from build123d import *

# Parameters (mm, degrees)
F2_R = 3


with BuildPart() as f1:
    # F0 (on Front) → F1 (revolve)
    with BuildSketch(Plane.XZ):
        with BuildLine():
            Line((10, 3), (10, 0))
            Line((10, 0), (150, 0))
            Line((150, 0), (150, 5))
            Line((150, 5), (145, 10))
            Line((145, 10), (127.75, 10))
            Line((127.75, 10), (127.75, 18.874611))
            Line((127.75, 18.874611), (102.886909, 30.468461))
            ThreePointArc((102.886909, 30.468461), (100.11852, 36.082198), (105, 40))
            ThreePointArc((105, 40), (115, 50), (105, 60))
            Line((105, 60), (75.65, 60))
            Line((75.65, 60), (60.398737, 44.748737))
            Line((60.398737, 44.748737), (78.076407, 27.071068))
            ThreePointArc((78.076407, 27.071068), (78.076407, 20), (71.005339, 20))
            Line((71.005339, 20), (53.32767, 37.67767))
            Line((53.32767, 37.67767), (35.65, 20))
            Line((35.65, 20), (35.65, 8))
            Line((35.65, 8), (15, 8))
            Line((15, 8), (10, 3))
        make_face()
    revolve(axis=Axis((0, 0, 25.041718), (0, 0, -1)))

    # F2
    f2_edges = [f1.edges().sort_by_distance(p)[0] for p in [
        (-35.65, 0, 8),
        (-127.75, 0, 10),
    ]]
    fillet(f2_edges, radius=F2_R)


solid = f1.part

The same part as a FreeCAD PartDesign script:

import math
import FreeCAD as App
import Part
import Sketcher
from FreeCAD import Vector
Q = App.Units.Quantity


def edges_at(feature, points):
    """Names of the edges that pass closest to the given points."""
    edges = feature.Shape.Edges
    near = lambda p: min(range(len(edges)), key=lambda i: edges[i].distToShape(Part.Vertex(*p))[0])
    return sorted({f"Edge{near(p) + 1}" for p in points})

doc = App.newDocument("Part")
params = doc.addObject("Spreadsheet::Sheet", "Params")
for row, (alias, value) in enumerate([
    ("sketch1_radius", "5 mm"),
    ("sketch1_radius2", "10 mm"),
    ("sketch1_width", "140 mm"),
    ("sketch1_height", "3 mm"),
    ("sketch1_height2", "5 mm"),
    ("revolution_angle", "360 deg"),
    ("fillet_radius", "3 mm"),
], start=1):
    params.set(f"A{row}", alias)
    params.set(f"B{row}", "=" + value)
    params.setAlias(f"B{row}", alias)

body = doc.addObject("PartDesign::Body", "Body")

sketch1 = doc.addObject("Sketcher::SketchObject", "Sketch")
body.addObject(sketch1)
sketch1.AttachmentSupport = (doc.XZ_Plane, [""])
sketch1.MapMode = "FlatFace"
sketch1.addGeometry([
    Part.LineSegment(Vector(10, 3, 0), Vector(10, 0, 0)),
    Part.LineSegment(Vector(10, 0, 0), Vector(150, 0, 0)),
    Part.LineSegment(Vector(150, 0, 0), Vector(150, 5, 0)),
    Part.LineSegment(Vector(150, 5, 0), Vector(145, 10, 0)),
    Part.LineSegment(Vector(145, 10, 0), Vector(127.8, 10, 0)),
    Part.LineSegment(Vector(127.8, 10, 0), Vector(127.8, 18.9, 0)),
    Part.LineSegment(Vector(127.8, 18.9, 0), Vector(102.9, 30.5, 0)),
    Part.ArcOfCircle(Part.Circle(Vector(105, 35, 0), Vector(0, 0, 1), 5), math.radians(90), math.radians(245)),
    Part.ArcOfCircle(Part.Circle(Vector(105, 50, 0), Vector(0, 0, 1), 10), math.radians(-90), math.radians(90)),
    Part.LineSegment(Vector(105, 60, 0), Vector(75.7, 60, 0)),
    Part.LineSegment(Vector(75.7, 60, 0), Vector(60.4, 44.7, 0)),
    Part.LineSegment(Vector(60.4, 44.7, 0), Vector(78.1, 27.1, 0)),
    Part.ArcOfCircle(Part.Circle(Vector(74.5, 23.5, 0), Vector(0, 0, 1), 5), math.radians(-135), math.radians(45)),
    Part.LineSegment(Vector(71, 20, 0), Vector(53.3, 37.7, 0)),
    Part.LineSegment(Vector(53.3, 37.7, 0), Vector(35.6, 20, 0)),
    Part.LineSegment(Vector(35.6, 20, 0), Vector(35.6, 8, 0)),
    Part.LineSegment(Vector(35.6, 8, 0), Vector(15, 8, 0)),
    Part.LineSegment(Vector(15, 8, 0), Vector(10, 3, 0)),
], False)
sketch1.addConstraint([
    Sketcher.Constraint("Coincident", 0, 2, 1, 1),
    Sketcher.Constraint("Coincident", 1, 2, 2, 1),
    Sketcher.Constraint("Coincident", 2, 2, 3, 1),
    Sketcher.Constraint("Coincident", 3, 2, 4, 1),
    Sketcher.Constraint("Coincident", 4, 2, 5, 1),
    Sketcher.Constraint("Coincident", 5, 2, 6, 1),
    Sketcher.Constraint("Tangent", 6, 2, 7, 2),
    Sketcher.Constraint("Tangent", 7, 1, 8, 1),
    Sketcher.Constraint("Tangent", 8, 2, 9, 1),
    Sketcher.Constraint("Coincident", 9, 2, 10, 1),
    Sketcher.Constraint("Coincident", 10, 2, 11, 1),
    Sketcher.Constraint("Tangent", 11, 2, 12, 2),
    Sketcher.Constraint("Tangent", 12, 1, 13, 1),
    Sketcher.Constraint("Coincident", 13, 2, 14, 1),
    Sketcher.Constraint("Coincident", 14, 2, 15, 1),
    Sketcher.Constraint("Coincident", 15, 2, 16, 1),
    Sketcher.Constraint("Coincident", 16, 2, 17, 1),
    Sketcher.Constraint("Coincident", 17, 2, 0, 1),
    Sketcher.Constraint("Vertical", 0),
    Sketcher.Constraint("Horizontal", 1),
    Sketcher.Constraint("Vertical", 2),
    Sketcher.Constraint("Horizontal", 4),
    Sketcher.Constraint("Vertical", 5),
    Sketcher.Constraint("Horizontal", 9),
    Sketcher.Constraint("Vertical", 15),
    Sketcher.Constraint("Horizontal", 16),
    Sketcher.Constraint("Equal", 7, 12),
    Sketcher.Constraint("PointOnObject", 0, 2, -1),
    Sketcher.Constraint("Perpendicular", 3, 10),
    Sketcher.Constraint("Perpendicular", 10, 11),
    Sketcher.Constraint("Parallel", 11, 13),
    Sketcher.Constraint("Perpendicular", 13, 14),
    Sketcher.Constraint("Parallel", 14, 17),
    Sketcher.Constraint("Horizontal", 12, 1, 14, 2),
    Sketcher.Constraint("Vertical", 7, 3, 8, 3),
    Sketcher.Constraint("Equal", 11, 13),
    Sketcher.Constraint("Equal", 13, 14),
    Sketcher.Constraint("Equal", 3, 17),
    Sketcher.Constraint("Radius", 7, Q("5 mm")),
    Sketcher.Constraint("Radius", 8, Q("10 mm")),
    Sketcher.Constraint("DistanceX", 1, 1, 1, 2, Q("140 mm")),
    Sketcher.Constraint("DistanceY", 0, 2, 0, 1, Q("3 mm")),
    Sketcher.Constraint("DistanceY", 2, 1, 2, 2, Q("5 mm")),
    Sketcher.Constraint("DistanceY", 15, 2, 15, 1, Q("12 mm")),
    Sketcher.Constraint("Angle", 6, Q("155 deg")),
    Sketcher.Constraint("Distance", 11, Q("25 mm")),
    Sketcher.Constraint("DistanceX", -1, 1, 7, 3, Q("105 mm")),
    Sketcher.Constraint("DistanceY", -1, 1, 7, 3, Q("35 mm")),
    Sketcher.Constraint("DistanceX", -1, 1, 0, 2, Q("10 mm")),
    Sketcher.Constraint("DistanceX", -1, 1, 3, 2, Q("145 mm")),
    Sketcher.Constraint("DistanceX", 4, 2, 4, 1, Q("17.25 mm")),
    Sketcher.Constraint("DistanceX", 9, 2, 9, 1, Q("29.35 mm")),
])
sketch1.setExpression("Constraints[38]", "Params.sketch1_radius")
sketch1.setExpression("Constraints[39]", "Params.sketch1_radius2")
sketch1.setExpression("Constraints[40]", "Params.sketch1_width")
sketch1.setExpression("Constraints[41]", "Params.sketch1_height")
sketch1.setExpression("Constraints[42]", "Params.sketch1_height2")
revolution = doc.addObject("PartDesign::Revolution", "Revolution")
body.addObject(revolution)
revolution.Profile = sketch1
revolution.ReferenceAxis = (sketch1, ["V_Axis"])
revolution.setExpression("Angle", "Params.revolution_angle")
doc.recompute()

fillet = doc.addObject("PartDesign::Fillet", "Fillet")
body.addObject(fillet)
fillet.Base = (revolution, edges_at(revolution, [(-35.65, 0, 8), (-127.75, 0, 10)]))
fillet.setExpression("Radius", "Params.fillet_radius")

doc.recompute()
